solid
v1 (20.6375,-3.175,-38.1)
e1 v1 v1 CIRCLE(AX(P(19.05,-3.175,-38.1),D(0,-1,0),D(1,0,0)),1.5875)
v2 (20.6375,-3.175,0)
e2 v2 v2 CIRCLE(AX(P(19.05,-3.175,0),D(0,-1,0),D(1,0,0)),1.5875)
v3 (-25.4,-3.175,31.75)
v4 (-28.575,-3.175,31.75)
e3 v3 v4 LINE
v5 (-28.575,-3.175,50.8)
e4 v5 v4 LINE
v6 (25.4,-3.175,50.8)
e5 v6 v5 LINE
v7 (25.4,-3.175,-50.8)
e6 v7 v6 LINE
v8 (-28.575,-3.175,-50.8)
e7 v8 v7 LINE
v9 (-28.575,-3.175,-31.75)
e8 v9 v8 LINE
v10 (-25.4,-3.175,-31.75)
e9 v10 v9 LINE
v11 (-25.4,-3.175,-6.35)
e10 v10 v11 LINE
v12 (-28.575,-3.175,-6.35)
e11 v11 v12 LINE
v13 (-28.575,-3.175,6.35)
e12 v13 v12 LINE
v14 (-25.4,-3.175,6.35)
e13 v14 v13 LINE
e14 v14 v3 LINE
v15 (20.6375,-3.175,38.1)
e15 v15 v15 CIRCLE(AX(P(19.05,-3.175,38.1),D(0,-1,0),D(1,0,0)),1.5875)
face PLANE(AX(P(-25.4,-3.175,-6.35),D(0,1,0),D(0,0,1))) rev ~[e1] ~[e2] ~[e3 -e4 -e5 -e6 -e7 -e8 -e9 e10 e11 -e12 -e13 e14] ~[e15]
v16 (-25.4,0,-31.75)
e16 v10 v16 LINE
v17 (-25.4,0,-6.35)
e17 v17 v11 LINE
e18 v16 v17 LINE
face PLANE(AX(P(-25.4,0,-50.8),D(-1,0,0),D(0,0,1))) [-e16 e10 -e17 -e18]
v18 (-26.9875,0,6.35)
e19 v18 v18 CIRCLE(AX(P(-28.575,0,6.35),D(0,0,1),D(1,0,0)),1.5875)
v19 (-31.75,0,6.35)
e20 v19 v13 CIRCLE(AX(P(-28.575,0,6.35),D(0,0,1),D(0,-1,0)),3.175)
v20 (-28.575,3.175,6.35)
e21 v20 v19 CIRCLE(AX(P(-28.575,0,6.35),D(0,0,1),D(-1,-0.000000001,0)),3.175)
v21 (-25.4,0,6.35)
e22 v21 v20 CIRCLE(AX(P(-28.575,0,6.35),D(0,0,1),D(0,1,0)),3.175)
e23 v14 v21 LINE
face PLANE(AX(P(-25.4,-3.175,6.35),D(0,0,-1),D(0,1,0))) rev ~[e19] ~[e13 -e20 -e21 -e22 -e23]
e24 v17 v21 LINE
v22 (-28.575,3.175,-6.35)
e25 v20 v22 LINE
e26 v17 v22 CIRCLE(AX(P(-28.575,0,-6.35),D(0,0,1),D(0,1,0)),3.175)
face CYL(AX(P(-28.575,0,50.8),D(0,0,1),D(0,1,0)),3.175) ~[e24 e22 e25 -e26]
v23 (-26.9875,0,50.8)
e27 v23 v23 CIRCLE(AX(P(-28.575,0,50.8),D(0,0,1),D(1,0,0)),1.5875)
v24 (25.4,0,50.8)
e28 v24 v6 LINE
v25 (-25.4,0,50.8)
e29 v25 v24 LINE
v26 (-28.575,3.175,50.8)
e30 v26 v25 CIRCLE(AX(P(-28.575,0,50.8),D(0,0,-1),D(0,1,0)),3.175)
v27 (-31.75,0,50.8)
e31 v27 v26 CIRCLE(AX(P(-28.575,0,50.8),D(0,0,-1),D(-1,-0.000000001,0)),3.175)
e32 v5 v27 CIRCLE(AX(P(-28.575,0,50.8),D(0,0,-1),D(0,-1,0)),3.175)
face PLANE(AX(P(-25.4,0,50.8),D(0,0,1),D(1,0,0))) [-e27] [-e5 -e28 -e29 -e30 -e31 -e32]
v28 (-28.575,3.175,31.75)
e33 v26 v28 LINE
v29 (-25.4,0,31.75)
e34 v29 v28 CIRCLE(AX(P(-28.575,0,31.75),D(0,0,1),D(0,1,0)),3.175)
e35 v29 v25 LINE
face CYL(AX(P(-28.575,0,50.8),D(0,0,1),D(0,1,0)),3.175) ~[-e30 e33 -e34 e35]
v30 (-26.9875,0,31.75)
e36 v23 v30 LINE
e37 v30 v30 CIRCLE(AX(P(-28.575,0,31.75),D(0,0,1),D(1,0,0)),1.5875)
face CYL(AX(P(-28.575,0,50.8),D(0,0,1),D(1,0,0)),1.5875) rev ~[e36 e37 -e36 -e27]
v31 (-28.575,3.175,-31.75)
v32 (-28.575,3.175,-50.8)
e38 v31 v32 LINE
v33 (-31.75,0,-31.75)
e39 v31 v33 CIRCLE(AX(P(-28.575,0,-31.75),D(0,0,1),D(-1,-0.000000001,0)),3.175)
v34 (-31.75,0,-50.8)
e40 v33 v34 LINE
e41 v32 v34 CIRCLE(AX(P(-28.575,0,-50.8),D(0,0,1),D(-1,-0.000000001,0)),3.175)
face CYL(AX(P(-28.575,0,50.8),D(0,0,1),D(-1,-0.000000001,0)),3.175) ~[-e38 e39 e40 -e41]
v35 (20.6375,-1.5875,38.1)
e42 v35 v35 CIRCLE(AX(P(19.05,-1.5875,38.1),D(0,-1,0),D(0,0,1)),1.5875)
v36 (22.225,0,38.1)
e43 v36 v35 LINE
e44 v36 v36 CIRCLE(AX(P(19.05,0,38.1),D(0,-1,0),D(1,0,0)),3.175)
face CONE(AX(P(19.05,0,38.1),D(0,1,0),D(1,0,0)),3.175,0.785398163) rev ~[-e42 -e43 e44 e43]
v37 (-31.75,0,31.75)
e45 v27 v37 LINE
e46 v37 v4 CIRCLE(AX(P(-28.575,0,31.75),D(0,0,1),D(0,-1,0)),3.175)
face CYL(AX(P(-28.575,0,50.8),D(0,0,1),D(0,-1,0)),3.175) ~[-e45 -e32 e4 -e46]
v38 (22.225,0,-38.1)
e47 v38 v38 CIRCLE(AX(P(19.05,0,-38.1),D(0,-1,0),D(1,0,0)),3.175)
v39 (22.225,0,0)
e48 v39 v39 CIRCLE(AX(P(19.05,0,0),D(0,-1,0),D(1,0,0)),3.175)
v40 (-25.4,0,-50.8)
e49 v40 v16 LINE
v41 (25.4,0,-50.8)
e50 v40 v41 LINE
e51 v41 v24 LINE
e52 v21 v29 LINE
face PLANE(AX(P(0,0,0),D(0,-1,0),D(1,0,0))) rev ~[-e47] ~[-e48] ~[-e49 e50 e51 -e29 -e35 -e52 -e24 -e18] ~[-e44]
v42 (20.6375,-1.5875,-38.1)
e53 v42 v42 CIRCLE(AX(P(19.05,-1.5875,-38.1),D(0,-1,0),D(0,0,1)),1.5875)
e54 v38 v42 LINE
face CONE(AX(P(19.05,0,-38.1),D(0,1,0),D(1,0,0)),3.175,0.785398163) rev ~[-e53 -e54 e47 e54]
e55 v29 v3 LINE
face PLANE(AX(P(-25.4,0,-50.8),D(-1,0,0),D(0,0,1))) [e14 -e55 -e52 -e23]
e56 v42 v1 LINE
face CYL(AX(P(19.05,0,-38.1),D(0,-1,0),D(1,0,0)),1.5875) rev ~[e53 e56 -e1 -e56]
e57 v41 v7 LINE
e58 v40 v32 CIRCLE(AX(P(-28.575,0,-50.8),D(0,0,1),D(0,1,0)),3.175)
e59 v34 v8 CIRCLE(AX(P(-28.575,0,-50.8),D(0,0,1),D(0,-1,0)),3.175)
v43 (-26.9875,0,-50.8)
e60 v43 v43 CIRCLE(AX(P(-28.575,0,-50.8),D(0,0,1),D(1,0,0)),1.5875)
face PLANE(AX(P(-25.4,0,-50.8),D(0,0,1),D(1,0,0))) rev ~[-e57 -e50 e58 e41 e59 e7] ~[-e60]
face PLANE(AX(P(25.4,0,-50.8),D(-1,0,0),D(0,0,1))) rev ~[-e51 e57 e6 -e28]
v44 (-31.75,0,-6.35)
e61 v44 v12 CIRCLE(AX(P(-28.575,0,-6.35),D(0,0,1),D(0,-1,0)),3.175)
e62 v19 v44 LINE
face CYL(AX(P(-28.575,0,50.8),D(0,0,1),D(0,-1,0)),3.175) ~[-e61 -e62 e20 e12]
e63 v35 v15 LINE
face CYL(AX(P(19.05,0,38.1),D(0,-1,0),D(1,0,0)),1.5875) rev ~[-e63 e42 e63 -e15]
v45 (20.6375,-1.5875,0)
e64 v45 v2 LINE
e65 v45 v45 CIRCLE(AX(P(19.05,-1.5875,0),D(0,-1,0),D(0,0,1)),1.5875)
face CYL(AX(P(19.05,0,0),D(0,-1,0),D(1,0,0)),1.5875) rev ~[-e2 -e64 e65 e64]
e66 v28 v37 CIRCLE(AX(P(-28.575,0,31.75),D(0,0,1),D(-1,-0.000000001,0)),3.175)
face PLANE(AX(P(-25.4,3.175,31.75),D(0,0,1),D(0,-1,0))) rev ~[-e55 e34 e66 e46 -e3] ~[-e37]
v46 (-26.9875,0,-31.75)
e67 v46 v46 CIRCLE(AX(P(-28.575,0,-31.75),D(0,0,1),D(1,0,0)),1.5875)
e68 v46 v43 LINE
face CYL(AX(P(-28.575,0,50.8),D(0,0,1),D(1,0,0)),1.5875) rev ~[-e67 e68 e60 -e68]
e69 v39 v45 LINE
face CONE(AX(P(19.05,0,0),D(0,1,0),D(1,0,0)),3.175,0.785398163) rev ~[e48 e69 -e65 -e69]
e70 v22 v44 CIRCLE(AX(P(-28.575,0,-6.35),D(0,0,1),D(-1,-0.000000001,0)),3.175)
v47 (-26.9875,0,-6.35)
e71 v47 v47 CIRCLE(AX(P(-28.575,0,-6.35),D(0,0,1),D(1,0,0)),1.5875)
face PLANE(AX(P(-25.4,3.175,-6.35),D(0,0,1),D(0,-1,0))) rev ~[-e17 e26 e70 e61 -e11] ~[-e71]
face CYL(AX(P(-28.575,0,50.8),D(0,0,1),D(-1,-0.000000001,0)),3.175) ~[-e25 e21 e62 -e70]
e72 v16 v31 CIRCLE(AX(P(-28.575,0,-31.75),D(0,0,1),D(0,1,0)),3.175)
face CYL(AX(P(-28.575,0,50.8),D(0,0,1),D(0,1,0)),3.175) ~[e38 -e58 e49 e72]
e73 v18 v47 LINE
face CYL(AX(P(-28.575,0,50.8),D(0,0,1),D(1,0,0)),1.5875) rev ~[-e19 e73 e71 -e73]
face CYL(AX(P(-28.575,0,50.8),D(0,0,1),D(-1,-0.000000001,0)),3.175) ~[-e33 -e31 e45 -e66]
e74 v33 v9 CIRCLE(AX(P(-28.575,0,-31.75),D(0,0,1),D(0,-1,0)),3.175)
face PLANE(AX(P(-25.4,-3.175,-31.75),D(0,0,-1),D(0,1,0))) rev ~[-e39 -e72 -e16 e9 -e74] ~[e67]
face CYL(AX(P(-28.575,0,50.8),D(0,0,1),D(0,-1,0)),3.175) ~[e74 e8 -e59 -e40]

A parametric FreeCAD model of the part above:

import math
import FreeCAD as App
import Part
import Sketcher
Q = App.Units.Quantity


def add_polygon(sketch, points):
    """Adds a closed chain of lines whose ends are joined by coincident constraints."""
    first, n = sketch.GeometryCount, len(points)
    for a, b in zip(points, points[1:] + points[:1]):
        sketch.addGeometry(Part.LineSegment(App.Vector(*a, 0), App.Vector(*b, 0)), False)
    for i in range(n):
        sketch.addConstraint(Sketcher.Constraint("Coincident", first + i, 2, first + (i + 1) % n, 1))

doc = App.newDocument("Part")
body = doc.addObject("PartDesign::Body", "Body")

sketch1 = body.newObject("Sketcher::SketchObject", "Sketch")
sketch1.AttachmentSupport = (doc.getObject("XZ_Plane"), [""])
sketch1.MapMode = "FlatFace"
add_polygon(sketch1, [(-25, 51), (-25, -51), (25, -51), (25, 51)])
sketch1.addConstraint([
    Sketcher.Constraint("Vertical", 0),
    Sketcher.Constraint("Horizontal", 1),
    Sketcher.Constraint("Vertical", 2),
    Sketcher.Constraint("Horizontal", 3),
    Sketcher.Constraint("Symmetric", 0, 2, 2, 2, -1, 1),
    Sketcher.Constraint("DistanceX", 1, 1, 1, 2, Q("2 in")),
    Sketcher.Constraint("DistanceY", 0, 2, 0, 1, Q("4 in")),
])
pad1 = body.newObject("PartDesign::Pad", "Pad")
pad1.Profile = sketch1
pad1.Length = Q("0.125 in")

sketch2 = body.newObject("Sketcher::SketchObject", "Sketch001")
sketch2.AttachmentSupport = (doc.getObject("YZ_Plane"), [""])
sketch2.MapMode = "FlatFace"
sketch2.AttachmentOffset = App.Placement(App.Vector(0, 0, -1 * 25.4), App.Rotation())
add_polygon(sketch2, [(3, 6), (3, -6), (-3, -6), (-3, 6)])
add_polygon(sketch2, [(3, -32), (3, -51), (-3, -51), (-3, -32)])
add_polygon(sketch2, [(-3, 32), (-3, 51), (3, 51), (3, 32)])
sketch2.addConstraint([
    Sketcher.Constraint("Vertical", 0),
    Sketcher.Constraint("Horizontal", 1),
    Sketcher.Constraint("Vertical", 2),
    Sketcher.Constraint("Horizontal", 3),
    Sketcher.Constraint("Vertical", 4),
    Sketcher.Constraint("Horizontal", 5),
    Sketcher.Constraint("Vertical", 6),
    Sketcher.Constraint("Horizontal", 7),
    Sketcher.Constraint("Vertical", 8),
    Sketcher.Constraint("Horizontal", 9),
    Sketcher.Constraint("Vertical", 10),
    Sketcher.Constraint("Horizontal", 11),
    Sketcher.Constraint("Symmetric", 0, 2, 2, 2, -1, 1),
    Sketcher.Constraint("Symmetric", 4, 2, 8, 2, -1, 1),
    Sketcher.Constraint("Symmetric", 6, 2, 10, 2, -1, 1),
    Sketcher.Constraint("Vertical", 3, 2, 4, 2),
    Sketcher.Constraint("Vertical", 2, 2, 5, 2),
    Sketcher.Constraint("DistanceY", 0, 2, 0, 1, Q("0.5 in")),
    Sketcher.Constraint("DistanceY", 4, 2, -1, 1, Q("2 in")),
    Sketcher.Constraint("DistanceY", 6, 2, 1, 2, Q("1 in")),
    Sketcher.Constraint("DistanceX", 1, 2, 1, 1, Q("0.25 in")),
])
pad2 = body.newObject("PartDesign::Pad", "Pad001")
pad2.Profile = sketch2
pad2.Length = Q("0.25 in")
pad2.Reversed = True

sketch3 = body.newObject("Sketcher::SketchObject", "Sketch002")
sketch3.AttachmentSupport = (doc.getObject("XY_Plane"), [""])
sketch3.MapMode = "FlatFace"
sketch3.AttachmentOffset = App.Placement(App.Vector(0, 0, 2 * 25.4), App.Rotation())
sketch3.addGeometry([
    Part.ArcOfCircle(Part.Circle(App.Vector(-28.6, 0, 0), App.Vector(0, 0, 1), 3.2), math.radians(90), math.radians(180)),
    Part.LineSegment(App.Vector(-28.6, 3.2, 0), App.Vector(-31.8, 3.2, 0)),
    Part.LineSegment(App.Vector(-31.8, 3.2, 0), App.Vector(-31.8, 0, 0)),
    Part.ArcOfCircle(Part.Circle(App.Vector(-28.6, 0, 0), App.Vector(0, 0, 1), 3.2), math.radians(0), math.radians(90)),
    Part.LineSegment(App.Vector(-25.4, 0, 0), App.Vector(-25.4, 3.2, 0)),
    Part.LineSegment(App.Vector(-25.4, 3.2, 0), App.Vector(-28.6, 3.2, 0)),
    Part.LineSegment(App.Vector(-31.8, -3.2, 0), App.Vector(-28.6, -3.2, 0)),
    Part.ArcOfCircle(Part.Circle(App.Vector(-28.6, 0, 0), App.Vector(0, 0, 1), 3.2), math.radians(-180), math.radians(-90)),
    Part.LineSegment(App.Vector(-31.8, 0, 0), App.Vector(-31.8, -3.2, 0)),
], False)
sketch3.addConstraint([
    Sketcher.Constraint("Tangent", 0, 1, 1, 1),
    Sketcher.Constraint("Coincident", 1, 2, 2, 1),
    Sketcher.Constraint("Tangent", 2, 2, 0, 2),
    Sketcher.Constraint("Tangent", 3, 1, 4, 1),
    Sketcher.Constraint("Coincident", 4, 2, 5, 1),
    Sketcher.Constraint("Tangent", 5, 2, 3, 2),
    Sketcher.Constraint("Tangent", 6, 2, 7, 2),
    Sketcher.Constraint("Tangent", 7, 1, 8, 1),
    Sketcher.Constraint("Coincident", 8, 2, 6, 1),
    Sketcher.Constraint("Horizontal", 1),
    Sketcher.Constraint("Vertical", 2),
    Sketcher.Constraint("Vertical", 4),
    Sketcher.Constraint("Horizontal", 5),
    Sketcher.Constraint("Horizontal", 6),
    Sketcher.Constraint("Vertical", 8),
    Sketcher.Constraint("Coincident", 3, 3, 0, 3),
    Sketcher.Constraint("Coincident", 7, 3, 0, 3),
    Sketcher.Constraint("Equal", 0, 3),
    Sketcher.Constraint("Equal", 3, 7),
    Sketcher.Constraint("PointOnObject", 0, 3, -1),
    Sketcher.Constraint("DistanceX", 3, 1, -1, 1, Q("1 in")),
    Sketcher.Constraint("Radius", 0, Q("0.125 in")),
])
pocket1 = body.newObject("PartDesign::Pocket", "Pocket")
pocket1.Profile = sketch3
pocket1.Type = "ThroughAll"

sketch4 = body.newObject("Sketcher::SketchObject", "Sketch003")
sketch4.AttachmentSupport = (doc.getObject("XY_Plane"), [""])
sketch4.MapMode = "FlatFace"
sketch4.AttachmentOffset = App.Placement(App.Vector(0, 0, 2 * 25.4), App.Rotation())
sketch4.addGeometry(Part.Circle(App.Vector(-28.6, 0, 0), App.Vector(0, 0, 1), 1.6), False)
sketch4.addConstraint([
    Sketcher.Constraint("PointOnObject", 0, 3, -1),
    Sketcher.Constraint("Diameter", 0, Q("0.125 in")),
    Sketcher.Constraint("DistanceX", 0, 3, -1, 1, Q("1.125 in")),
])
pocket2 = body.newObject("PartDesign::Pocket", "Pocket001")
pocket2.Profile = sketch4
pocket2.Type = "ThroughAll"

sketch5 = body.newObject("Sketcher::SketchObject", "Sketch004")
sketch5.AttachmentSupport = (doc.getObject("XZ_Plane"), [""])
sketch5.MapMode = "FlatFace"
sketch5.addGeometry([
    Part.Circle(App.Vector(19.1, 38.1, 0), App.Vector(0, 0, 1), 1.6),
    Part.Circle(App.Vector(19.1, 0, 0), App.Vector(0, 0, 1), 1.6),
    Part.Circle(App.Vector(19.1, -38.1, 0), App.Vector(0, 0, 1), 1.6),
], False)
sketch5.addConstraint([
    Sketcher.Constraint("Equal", 0, 1),
    Sketcher.Constraint("Equal", 1, 2),
    Sketcher.Constraint("Symmetric", 0, 3, 2, 3, -1),
    Sketcher.Constraint("PointOnObject", 1, 3, -1),
    Sketcher.Constraint("Vertical", 0, 3, 1, 3),
    Sketcher.Constraint("Diameter", 0, Q("0.125 in")),
    Sketcher.Constraint("DistanceY", 2, 3, 0, 3, Q("3 in")),
    Sketcher.Constraint("DistanceX", -1, 1, 0, 3, Q("0.75 in")),
])
doc.recompute()
hole = body.newObject("PartDesign::Hole", "Hole")
hole.Profile = sketch5
hole.ThreadType = "None"
hole.Diameter = Q("0.125 in")
hole.DepthType = "ThroughAll"
hole.HoleCutType = "Countersink"
hole.HoleCutDiameter = Q("0.25 in")
hole.HoleCutCountersinkAngle = 90
hole.Reversed = True

doc.recompute()
